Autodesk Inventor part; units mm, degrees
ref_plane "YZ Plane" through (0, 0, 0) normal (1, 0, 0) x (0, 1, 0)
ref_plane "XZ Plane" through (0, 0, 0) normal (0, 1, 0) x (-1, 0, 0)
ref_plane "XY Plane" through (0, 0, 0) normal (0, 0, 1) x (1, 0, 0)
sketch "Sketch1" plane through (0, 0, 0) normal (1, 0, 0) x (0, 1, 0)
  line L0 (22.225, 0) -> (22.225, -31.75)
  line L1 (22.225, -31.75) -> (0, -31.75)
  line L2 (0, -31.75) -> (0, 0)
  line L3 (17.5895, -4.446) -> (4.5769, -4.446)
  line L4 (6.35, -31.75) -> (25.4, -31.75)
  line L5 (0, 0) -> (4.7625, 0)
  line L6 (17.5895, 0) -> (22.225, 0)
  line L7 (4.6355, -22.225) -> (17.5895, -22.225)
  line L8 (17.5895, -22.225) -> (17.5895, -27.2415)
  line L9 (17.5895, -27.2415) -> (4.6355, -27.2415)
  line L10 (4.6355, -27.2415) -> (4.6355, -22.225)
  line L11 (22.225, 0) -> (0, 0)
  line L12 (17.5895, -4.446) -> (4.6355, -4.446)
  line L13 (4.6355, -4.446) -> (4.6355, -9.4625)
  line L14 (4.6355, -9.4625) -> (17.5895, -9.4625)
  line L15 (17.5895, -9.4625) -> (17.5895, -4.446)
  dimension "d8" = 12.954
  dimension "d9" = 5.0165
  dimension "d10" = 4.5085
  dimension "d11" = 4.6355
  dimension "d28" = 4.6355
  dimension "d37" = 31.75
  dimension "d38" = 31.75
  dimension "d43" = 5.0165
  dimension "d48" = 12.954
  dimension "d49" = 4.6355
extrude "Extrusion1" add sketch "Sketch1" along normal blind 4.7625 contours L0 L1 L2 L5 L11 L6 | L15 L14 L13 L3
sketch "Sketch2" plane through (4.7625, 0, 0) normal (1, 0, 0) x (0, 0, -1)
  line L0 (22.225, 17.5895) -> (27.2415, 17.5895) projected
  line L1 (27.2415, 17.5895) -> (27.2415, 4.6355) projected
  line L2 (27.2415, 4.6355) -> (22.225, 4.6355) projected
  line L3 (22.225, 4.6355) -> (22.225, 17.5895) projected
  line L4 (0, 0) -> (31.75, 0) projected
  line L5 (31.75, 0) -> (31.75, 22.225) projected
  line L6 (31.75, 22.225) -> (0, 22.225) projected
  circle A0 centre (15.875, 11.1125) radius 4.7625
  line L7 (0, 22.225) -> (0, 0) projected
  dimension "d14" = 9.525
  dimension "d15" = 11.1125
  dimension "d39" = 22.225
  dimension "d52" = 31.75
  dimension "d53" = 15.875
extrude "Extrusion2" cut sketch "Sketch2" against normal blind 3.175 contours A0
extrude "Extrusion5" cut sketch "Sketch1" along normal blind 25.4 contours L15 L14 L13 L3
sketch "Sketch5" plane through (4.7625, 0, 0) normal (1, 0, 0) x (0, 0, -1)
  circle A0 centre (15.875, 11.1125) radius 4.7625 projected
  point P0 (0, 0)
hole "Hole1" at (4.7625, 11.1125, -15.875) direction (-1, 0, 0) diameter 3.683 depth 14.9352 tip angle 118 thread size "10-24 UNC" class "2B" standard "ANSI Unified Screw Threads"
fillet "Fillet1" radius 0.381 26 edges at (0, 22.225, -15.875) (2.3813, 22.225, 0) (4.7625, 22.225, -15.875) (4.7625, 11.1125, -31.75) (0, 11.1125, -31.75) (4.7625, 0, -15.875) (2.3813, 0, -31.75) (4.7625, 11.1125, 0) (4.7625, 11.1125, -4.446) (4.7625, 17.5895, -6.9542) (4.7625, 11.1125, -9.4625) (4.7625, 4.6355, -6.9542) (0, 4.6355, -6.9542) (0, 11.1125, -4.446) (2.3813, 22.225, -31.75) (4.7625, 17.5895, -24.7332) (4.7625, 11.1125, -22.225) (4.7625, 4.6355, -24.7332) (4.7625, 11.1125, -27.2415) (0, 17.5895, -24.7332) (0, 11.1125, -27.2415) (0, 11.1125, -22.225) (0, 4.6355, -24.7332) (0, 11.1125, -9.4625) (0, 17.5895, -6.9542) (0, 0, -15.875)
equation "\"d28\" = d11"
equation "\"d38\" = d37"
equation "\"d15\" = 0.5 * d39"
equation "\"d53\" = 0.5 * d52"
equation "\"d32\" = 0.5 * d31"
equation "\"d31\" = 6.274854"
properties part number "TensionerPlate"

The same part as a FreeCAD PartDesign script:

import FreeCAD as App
import Part
import Sketcher

V = App.Vector
Q = App.Units.Quantity


def edges_at(feature, points):
    """Names of the edges that pass closest to the given points."""
    edges = feature.Shape.Edges
    near = lambda p: min(range(len(edges)), key=lambda i: edges[i].distToShape(Part.Vertex(*p))[0])
    return sorted({f"Edge{near(p) + 1}" for p in points})


def add_polygon(sketch, points):
    """Adds a closed chain of lines whose ends are joined by coincident constraints."""
    first, n = sketch.GeometryCount, len(points)
    for a, b in zip(points, points[1:] + points[:1]):
        sketch.addGeometry(Part.LineSegment(App.Vector(*a, 0), App.Vector(*b, 0)), False)
    for i in range(n):
        sketch.addConstraint(Sketcher.Constraint("Coincident", first + i, 2, first + (i + 1) % n, 1))

doc = App.newDocument("Part")
body = doc.addObject("PartDesign::Body", "Body")

# Sketch on YZ plane
sketch1 = body.newObject("Sketcher::SketchObject", "Sketch")
sketch1.AttachmentSupport = (doc.getObject("YZ_Plane"), [""])
sketch1.MapMode = "FlatFace"
add_polygon(sketch1, [(22, -32), (22, 0), (0, 0), (0, -32)])  # lines 0-3
add_polygon(sketch1, [(5, -27), (5, -22), (18, -22), (18, -27)])  # lines 4-7
sketch1.addConstraint([
    Sketcher.Constraint("Vertical", 0),
    Sketcher.Constraint("Horizontal", 1),
    Sketcher.Constraint("Vertical", 2),
    Sketcher.Constraint("Horizontal", 3),
    Sketcher.Constraint("Vertical", 4),
    Sketcher.Constraint("Horizontal", 5),
    Sketcher.Constraint("Vertical", 6),
    Sketcher.Constraint("Horizontal", 7),
    Sketcher.Constraint("Coincident", 1, 2, -1, 1),
    Sketcher.Constraint("DistanceX", 5, 1, 5, 2, Q("0.51 in")),
    Sketcher.Constraint("DistanceY", 0, 1, 0, 2, Q("1.25 in")),
    Sketcher.Constraint("DistanceY", 4, 1, 4, 2, Q("0.1975 in")),
    Sketcher.Constraint("DistanceX", -1, 1, 4, 2, Q("0.1825 in")),
    Sketcher.Constraint("DistanceX", 5, 2, 3, 2, Q("0.1825 in")),
    Sketcher.Constraint("DistanceY", 3, 2, 6, 2, Q("0.1775 in")),
])
pad1 = body.newObject("PartDesign::Pad", "Pad")
pad1.Profile = sketch1
pad1.Length = Q("0.1875 in")

# Sketch on YZ plane
sketch2 = body.newObject("Sketcher::SketchObject", "Sketch001")
sketch2.AttachmentSupport = (doc.getObject("YZ_Plane"), [""])
sketch2.MapMode = "FlatFace"
sketch2.AttachmentOffset = App.Placement(V(0, 0, 0.1875 * 25.4), App.Rotation())
sketch2.addGeometry(Part.Circle(V(11.1, -15.9, 0), V(0, 0, 1), 4.8), False)
sketch2.addConstraint([
    Sketcher.Constraint("Diameter", 0, Q("0.375 in")),
    Sketcher.Constraint("DistanceX", -1, 1, 0, 3, Q("0.4375 in")),
    Sketcher.Constraint("DistanceY", 0, 3, -1, 1, Q("0.625 in")),
])
pocket1 = body.newObject("PartDesign::Pocket", "Pocket")
pocket1.Profile = sketch2
pocket1.Length = Q("0.125 in")

# Sketch on YZ plane
sketch3 = body.newObject("Sketcher::SketchObject", "Sketch002")
sketch3.AttachmentSupport = (doc.getObject("YZ_Plane"), [""])
sketch3.MapMode = "FlatFace"
add_polygon(sketch3, [(18, -9), (18, -4), (5, -4), (5, -9)])  # lines 0-3
sketch3.addConstraint([
    Sketcher.Constraint("Vertical", 0),
    Sketcher.Constraint("Horizontal", 1),
    Sketcher.Constraint("Vertical", 2),
    Sketcher.Constraint("Horizontal", 3),
    Sketcher.Constraint("DistanceX", 1, 2, 1, 1, Q("0.51 in")),
    Sketcher.Constraint("DistanceY", 0, 1, 0, 2, Q("0.1975 in")),
    Sketcher.Constraint("DistanceX", -1, 1, 1, 2, Q("0.1825 in")),
    Sketcher.Constraint("DistanceY", 0, 2, -1, 1, 4.446),
])
pocket2 = body.newObject("PartDesign::Pocket", "Pocket001")
pocket2.Profile = sketch3
pocket2.Length = Q("1 in")
pocket2.Reversed = True

# Sketch on YZ plane
sketch4 = body.newObject("Sketcher::SketchObject", "Sketch003")
sketch4.AttachmentSupport = (doc.getObject("YZ_Plane"), [""])
sketch4.MapMode = "FlatFace"
sketch4.AttachmentOffset = App.Placement(V(0, 0, 0.1875 * 25.4), App.Rotation())
sketch4.addGeometry(Part.Circle(V(11.1, -15.9, 0), V(0, 0, 1), 1.8), False)
sketch4.addConstraint([
    Sketcher.Constraint("Diameter", 0, Q("0.145 in")),
    Sketcher.Constraint("DistanceX", -1, 1, 0, 3, Q("0.4375 in")),
    Sketcher.Constraint("DistanceY", 0, 3, -1, 1, Q("0.625 in")),
])
doc.recompute()
hole = body.newObject("PartDesign::Hole", "Hole")
hole.Profile = sketch4
hole.ThreadType = "None"
hole.Diameter = Q("0.145 in")
hole.DepthType = "Dimension"
hole.Depth = Q("0.588 in")
hole.DrillPoint = "Angled"
hole.DrillPointAngle = 118
doc.recompute()

fillet = body.newObject("PartDesign::Fillet", "Fillet")
fillet.Base = (hole, edges_at(hole, [
    (0, 22.225, -15.875),
    (2.381, 22.225, 0),
    (4.763, 22.225, -15.875),
    (4.763, 11.113, -31.75),
    (0, 11.113, -31.75),
    (4.763, 0, -15.875),
    (2.381, 0, -31.75),
    (4.763, 11.113, 0),
    (4.763, 11.113, -4.446),
    (4.763, 17.59, -6.954),
    (4.763, 11.113, -9.463),
    (4.763, 4.636, -6.954),
    (0, 4.636, -6.954),
    (0, 11.113, -4.446),
    (2.381, 22.225, -31.75),
    (4.763, 17.59, -24.733),
    (4.763, 11.113, -22.225),
    (4.763, 4.636, -24.733),
    (4.763, 11.113, -27.241),
    (0, 17.59, -24.733),
    (0, 11.113, -27.241),
    (0, 11.113, -22.225),
    (0, 4.636, -24.733),
    (0, 11.113, -9.463),
    (0, 17.59, -6.954),
    (0, 0, -15.875),
]))
fillet.Radius = Q("0.015 in")

doc.recompute()
